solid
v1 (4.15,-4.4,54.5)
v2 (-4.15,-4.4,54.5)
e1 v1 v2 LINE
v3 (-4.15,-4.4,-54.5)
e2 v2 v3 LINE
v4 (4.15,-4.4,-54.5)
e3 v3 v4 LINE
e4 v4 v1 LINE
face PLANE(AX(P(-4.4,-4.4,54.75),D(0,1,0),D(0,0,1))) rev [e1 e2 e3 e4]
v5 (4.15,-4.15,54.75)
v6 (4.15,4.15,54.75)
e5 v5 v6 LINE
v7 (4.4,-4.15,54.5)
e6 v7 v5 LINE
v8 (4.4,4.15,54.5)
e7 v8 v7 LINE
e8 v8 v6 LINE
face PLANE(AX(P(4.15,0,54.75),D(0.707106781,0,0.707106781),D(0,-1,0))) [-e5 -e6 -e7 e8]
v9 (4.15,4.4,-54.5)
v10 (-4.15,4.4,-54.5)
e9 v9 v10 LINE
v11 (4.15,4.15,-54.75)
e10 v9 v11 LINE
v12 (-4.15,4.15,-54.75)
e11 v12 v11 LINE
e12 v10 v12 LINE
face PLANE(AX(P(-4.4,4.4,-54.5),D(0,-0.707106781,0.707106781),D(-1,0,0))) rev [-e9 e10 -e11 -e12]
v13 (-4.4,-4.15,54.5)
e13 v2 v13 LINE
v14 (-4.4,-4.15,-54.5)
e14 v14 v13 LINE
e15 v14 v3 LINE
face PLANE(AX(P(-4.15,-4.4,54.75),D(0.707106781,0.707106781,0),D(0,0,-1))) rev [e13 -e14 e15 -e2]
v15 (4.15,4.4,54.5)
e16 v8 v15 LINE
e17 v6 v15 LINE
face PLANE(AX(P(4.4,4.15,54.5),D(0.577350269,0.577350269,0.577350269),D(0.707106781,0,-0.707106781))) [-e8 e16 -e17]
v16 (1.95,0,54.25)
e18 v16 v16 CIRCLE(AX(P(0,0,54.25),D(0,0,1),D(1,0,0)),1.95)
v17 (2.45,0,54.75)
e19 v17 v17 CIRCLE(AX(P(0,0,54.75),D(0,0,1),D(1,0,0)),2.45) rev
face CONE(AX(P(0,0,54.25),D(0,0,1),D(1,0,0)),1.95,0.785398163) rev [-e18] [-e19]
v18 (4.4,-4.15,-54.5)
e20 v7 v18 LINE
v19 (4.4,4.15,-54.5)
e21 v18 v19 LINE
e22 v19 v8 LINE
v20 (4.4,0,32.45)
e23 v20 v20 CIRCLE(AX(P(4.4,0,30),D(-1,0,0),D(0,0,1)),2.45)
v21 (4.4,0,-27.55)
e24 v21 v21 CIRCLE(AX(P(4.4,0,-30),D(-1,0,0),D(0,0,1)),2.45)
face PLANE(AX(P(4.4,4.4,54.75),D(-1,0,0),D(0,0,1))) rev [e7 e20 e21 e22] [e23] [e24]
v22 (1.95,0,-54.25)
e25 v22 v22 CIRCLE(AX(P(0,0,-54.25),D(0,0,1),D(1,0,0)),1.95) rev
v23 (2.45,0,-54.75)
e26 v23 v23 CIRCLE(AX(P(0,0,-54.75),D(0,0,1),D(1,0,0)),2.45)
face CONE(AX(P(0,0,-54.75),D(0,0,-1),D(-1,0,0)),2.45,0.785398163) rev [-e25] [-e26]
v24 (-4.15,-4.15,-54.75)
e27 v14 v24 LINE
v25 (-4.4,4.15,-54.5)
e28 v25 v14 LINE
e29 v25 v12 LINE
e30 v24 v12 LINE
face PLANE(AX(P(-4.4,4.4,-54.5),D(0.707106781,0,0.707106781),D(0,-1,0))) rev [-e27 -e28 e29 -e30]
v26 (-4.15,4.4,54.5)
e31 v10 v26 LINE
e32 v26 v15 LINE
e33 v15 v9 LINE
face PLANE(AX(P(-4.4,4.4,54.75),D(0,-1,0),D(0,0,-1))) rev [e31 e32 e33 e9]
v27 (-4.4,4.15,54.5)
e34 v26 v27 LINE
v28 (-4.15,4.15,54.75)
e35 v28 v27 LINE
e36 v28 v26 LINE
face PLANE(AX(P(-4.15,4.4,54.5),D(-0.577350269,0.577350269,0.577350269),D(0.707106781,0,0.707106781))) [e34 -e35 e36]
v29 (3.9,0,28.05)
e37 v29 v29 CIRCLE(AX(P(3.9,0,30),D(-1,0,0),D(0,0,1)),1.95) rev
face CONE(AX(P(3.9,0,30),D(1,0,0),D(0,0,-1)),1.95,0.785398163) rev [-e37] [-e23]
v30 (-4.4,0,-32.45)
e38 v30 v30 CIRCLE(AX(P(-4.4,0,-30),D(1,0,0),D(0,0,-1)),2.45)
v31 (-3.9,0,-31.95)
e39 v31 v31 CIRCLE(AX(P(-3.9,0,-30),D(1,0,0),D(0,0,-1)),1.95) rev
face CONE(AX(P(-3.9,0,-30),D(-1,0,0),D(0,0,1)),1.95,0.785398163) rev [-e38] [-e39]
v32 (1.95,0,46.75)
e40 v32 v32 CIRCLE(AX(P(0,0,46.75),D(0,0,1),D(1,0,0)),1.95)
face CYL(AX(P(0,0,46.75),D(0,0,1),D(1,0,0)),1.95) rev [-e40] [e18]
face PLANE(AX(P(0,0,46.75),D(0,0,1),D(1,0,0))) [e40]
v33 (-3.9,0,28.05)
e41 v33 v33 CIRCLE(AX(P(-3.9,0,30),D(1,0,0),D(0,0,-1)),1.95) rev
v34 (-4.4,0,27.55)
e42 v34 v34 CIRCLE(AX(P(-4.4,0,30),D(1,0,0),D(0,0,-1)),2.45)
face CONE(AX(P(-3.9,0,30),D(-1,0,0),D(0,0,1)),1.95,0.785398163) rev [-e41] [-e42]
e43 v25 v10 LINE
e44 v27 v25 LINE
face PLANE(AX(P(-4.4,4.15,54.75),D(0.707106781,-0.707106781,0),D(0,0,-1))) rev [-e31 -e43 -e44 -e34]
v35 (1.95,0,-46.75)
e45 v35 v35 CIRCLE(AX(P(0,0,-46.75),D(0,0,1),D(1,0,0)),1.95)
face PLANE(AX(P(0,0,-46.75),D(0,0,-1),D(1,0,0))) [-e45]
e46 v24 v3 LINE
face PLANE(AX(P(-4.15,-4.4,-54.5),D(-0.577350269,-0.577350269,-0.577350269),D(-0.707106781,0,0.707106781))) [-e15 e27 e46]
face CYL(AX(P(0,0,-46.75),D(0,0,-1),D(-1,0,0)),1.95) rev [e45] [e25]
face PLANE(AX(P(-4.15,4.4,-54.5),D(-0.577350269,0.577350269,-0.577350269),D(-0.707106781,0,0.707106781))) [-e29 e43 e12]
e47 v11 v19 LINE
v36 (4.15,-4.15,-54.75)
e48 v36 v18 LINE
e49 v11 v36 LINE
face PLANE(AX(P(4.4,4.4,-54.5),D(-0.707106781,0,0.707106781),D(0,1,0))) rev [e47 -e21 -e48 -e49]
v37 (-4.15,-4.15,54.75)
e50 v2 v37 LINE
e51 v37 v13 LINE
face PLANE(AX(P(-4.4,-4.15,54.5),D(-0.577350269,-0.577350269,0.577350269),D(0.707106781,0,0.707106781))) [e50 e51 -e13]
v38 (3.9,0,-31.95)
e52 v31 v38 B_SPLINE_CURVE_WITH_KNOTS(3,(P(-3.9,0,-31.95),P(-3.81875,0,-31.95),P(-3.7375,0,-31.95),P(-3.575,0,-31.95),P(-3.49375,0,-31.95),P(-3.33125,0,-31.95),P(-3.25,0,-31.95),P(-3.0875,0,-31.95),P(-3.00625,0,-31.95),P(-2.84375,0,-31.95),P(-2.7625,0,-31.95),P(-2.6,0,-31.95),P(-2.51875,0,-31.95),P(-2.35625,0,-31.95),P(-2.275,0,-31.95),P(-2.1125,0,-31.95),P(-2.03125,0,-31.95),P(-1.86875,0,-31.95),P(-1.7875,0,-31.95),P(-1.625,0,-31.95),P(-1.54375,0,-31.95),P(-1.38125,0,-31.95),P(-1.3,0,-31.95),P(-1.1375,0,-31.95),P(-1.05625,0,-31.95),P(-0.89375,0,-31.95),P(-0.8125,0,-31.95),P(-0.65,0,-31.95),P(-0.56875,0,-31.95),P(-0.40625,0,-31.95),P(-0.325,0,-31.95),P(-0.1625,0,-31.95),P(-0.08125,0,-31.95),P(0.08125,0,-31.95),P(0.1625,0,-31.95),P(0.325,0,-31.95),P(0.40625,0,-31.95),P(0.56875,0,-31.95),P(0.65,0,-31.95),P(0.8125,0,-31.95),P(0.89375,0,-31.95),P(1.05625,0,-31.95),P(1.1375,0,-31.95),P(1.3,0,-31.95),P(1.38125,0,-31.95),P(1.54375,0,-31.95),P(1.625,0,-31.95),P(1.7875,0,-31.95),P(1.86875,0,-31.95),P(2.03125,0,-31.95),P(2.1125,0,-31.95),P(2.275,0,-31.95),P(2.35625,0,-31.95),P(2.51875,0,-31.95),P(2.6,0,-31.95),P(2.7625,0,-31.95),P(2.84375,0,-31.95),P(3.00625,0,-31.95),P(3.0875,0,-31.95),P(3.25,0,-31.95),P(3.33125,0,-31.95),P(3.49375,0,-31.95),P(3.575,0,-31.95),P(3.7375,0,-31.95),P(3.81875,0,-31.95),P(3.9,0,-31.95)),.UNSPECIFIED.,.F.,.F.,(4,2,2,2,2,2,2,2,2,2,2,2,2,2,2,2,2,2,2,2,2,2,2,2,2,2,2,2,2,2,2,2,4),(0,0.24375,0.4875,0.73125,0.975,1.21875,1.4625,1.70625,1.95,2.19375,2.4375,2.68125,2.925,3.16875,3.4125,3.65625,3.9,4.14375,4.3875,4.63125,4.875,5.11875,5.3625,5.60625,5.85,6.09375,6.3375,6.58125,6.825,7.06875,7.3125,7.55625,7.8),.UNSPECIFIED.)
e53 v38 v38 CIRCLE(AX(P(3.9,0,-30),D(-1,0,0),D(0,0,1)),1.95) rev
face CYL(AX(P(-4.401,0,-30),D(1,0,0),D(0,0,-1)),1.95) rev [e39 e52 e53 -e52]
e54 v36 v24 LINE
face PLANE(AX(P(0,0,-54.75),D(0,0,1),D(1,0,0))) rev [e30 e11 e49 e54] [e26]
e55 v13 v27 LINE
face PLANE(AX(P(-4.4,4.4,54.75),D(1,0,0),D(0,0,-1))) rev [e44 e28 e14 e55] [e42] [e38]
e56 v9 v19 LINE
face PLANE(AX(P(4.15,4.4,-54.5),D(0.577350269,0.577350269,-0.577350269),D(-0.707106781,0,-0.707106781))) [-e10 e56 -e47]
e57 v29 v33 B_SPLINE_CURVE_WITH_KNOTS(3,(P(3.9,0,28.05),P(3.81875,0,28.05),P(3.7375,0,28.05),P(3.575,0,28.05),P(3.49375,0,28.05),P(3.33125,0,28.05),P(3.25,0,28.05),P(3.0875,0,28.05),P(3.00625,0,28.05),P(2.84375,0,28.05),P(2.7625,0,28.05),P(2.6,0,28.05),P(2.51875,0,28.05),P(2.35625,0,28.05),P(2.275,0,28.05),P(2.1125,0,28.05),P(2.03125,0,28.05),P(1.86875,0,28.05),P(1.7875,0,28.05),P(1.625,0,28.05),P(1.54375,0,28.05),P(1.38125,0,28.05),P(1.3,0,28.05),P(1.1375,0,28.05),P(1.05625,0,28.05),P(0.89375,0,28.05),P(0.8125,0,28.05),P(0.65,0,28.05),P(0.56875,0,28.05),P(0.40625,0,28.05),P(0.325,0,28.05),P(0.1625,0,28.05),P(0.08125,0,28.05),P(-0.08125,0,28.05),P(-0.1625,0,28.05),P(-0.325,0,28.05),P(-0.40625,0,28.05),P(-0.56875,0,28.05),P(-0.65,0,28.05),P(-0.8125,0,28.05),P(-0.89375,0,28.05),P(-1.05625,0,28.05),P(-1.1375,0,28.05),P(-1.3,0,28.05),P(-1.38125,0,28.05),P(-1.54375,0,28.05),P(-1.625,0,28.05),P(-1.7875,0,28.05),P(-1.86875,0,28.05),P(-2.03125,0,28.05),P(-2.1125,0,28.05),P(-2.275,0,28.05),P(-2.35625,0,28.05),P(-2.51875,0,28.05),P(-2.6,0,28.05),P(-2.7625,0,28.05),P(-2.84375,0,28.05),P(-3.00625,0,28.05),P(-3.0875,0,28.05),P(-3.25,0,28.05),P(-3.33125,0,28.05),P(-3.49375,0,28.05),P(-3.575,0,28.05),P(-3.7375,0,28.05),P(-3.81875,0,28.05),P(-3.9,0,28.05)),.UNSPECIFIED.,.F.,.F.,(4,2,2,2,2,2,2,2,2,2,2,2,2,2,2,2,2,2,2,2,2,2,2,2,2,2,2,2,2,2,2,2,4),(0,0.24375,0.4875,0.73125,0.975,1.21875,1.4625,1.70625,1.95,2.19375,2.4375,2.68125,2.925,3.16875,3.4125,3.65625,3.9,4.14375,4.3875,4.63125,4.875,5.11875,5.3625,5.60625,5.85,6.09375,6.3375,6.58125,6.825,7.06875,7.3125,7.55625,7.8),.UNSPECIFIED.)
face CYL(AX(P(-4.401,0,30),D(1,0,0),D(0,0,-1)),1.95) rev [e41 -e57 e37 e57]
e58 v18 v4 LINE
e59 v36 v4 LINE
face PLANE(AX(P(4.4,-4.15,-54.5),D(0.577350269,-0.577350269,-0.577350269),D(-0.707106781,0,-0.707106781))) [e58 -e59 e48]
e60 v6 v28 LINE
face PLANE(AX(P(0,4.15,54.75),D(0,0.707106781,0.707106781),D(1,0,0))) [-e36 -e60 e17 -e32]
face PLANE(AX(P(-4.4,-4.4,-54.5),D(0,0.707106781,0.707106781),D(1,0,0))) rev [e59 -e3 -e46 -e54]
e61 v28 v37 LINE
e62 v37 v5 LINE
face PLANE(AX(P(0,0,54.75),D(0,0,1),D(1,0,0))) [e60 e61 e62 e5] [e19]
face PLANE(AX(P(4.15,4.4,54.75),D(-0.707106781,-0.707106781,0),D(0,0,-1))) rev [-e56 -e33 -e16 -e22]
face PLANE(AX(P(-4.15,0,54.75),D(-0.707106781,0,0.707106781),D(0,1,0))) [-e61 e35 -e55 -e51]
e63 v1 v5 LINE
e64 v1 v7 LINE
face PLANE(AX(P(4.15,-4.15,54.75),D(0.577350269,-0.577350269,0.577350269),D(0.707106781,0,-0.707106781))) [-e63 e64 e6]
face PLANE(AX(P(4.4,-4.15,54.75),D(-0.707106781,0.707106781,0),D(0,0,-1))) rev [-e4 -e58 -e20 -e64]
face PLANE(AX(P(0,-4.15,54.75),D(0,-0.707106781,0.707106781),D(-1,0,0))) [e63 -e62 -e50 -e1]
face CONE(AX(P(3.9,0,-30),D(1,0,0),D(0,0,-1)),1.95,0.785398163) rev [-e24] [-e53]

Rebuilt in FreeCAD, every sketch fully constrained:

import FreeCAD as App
import Part
import Sketcher

V = App.Vector


def edges_at(feature, points):
    """Names of the edges that pass closest to the given points."""
    edges = feature.Shape.Edges
    near = lambda p: min(range(len(edges)), key=lambda i: edges[i].distToShape(Part.Vertex(*p))[0])
    return sorted({f"Edge{near(p) + 1}" for p in points})


def add_polygon(sketch, points):
    """Adds a closed chain of lines whose ends are joined by coincident constraints."""
    first, n = sketch.GeometryCount, len(points)
    for a, b in zip(points, points[1:] + points[:1]):
        sketch.addGeometry(Part.LineSegment(App.Vector(*a, 0), App.Vector(*b, 0)), False)
    for i in range(n):
        sketch.addConstraint(Sketcher.Constraint("Coincident", first + i, 2, first + (i + 1) % n, 1))

doc = App.newDocument("Part")
body = doc.addObject("PartDesign::Body", "Body")

# Sketch on XY plane
sketch1 = body.newObject("Sketcher::SketchObject", "Sketch")
sketch1.AttachmentSupport = (doc.getObject("XY_Plane"), [""])
sketch1.MapMode = "FlatFace"
add_polygon(sketch1, [(-4.4, 4.4), (-4.4, -4.4), (4.4, -4.4), (4.4, 4.4)])  # lines 0-3
sketch1.addConstraint([
    Sketcher.Constraint("Vertical", 0),
    Sketcher.Constraint("Horizontal", 1),
    Sketcher.Constraint("Vertical", 2),
    Sketcher.Constraint("Horizontal", 3),
    Sketcher.Constraint("Symmetric", 0, 2, 2, 2, -1, 1),
    Sketcher.Constraint("Equal", 3, 0),
    Sketcher.Constraint("DistanceX", 1, 1, 1, 2, 8.8),
])
pad1 = body.newObject("PartDesign::Pad", "Pad")
pad1.Profile = sketch1
pad1.Length = 109.5
pad1.Midplane = True

# Sketch on XY plane
sketch2 = body.newObject("Sketcher::SketchObject", "Sketch001")
sketch2.AttachmentSupport = (doc.getObject("XY_Plane"), [""])
sketch2.MapMode = "FlatFace"
sketch2.AttachmentOffset = App.Placement(V(0, 0, 54.75), App.Rotation())
sketch2.addGeometry(Part.Circle(V(0, 0, 0), V(0, 0, 1), 1.95), False)
sketch2.addConstraint([
    Sketcher.Constraint("Coincident", 0, 3, -1, 1),
    Sketcher.Constraint("Diameter", 0, 3.9),
])
pocket1 = body.newObject("PartDesign::Pocket", "Pocket")
pocket1.Profile = sketch2
pocket1.Length = 8
doc.recompute()

mirrored = body.newObject("PartDesign::Mirrored", "Mirrored")
mirrored.Originals = [pocket1]
mirrored.MirrorPlane = (doc.getObject("XY_Plane"), [""])
body.Tip = mirrored

# Sketch on YZ plane
sketch3 = body.newObject("Sketcher::SketchObject", "Sketch002")
sketch3.AttachmentSupport = (doc.getObject("YZ_Plane"), [""])
sketch3.MapMode = "FlatFace"
sketch3.AttachmentOffset = App.Placement(V(0, 0, 4.4), App.Rotation())
sketch3.addGeometry(Part.Circle(V(0, 30, 0), V(0, 0, 1), 1.95), False)
sketch3.addConstraint([
    Sketcher.Constraint("PointOnObject", 0, 3, -2),
    Sketcher.Constraint("Diameter", 0, 3.9),
    Sketcher.Constraint("DistanceY", -1, 1, 0, 3, 30.0),
])
pocket2 = body.newObject("PartDesign::Pocket", "Pocket001")
pocket2.Profile = sketch3
pocket2.Type = "UpToFirst"

# Sketch on YZ plane
sketch4 = body.newObject("Sketcher::SketchObject", "Sketch003")
sketch4.AttachmentSupport = (doc.getObject("YZ_Plane"), [""])
sketch4.MapMode = "FlatFace"
sketch4.AttachmentOffset = App.Placement(V(0, 0, 4.4), App.Rotation())
sketch4.addGeometry(Part.Circle(V(0, -30, 0), V(0, 0, 1), 1.95), False)
sketch4.addConstraint([
    Sketcher.Constraint("PointOnObject", 0, 3, -2),
    Sketcher.Constraint("Diameter", 0, 3.9),
    Sketcher.Constraint("DistanceY", 0, 3, -1, 1, 30.0),
])
pocket3 = body.newObject("PartDesign::Pocket", "Pocket002")
pocket3.Profile = sketch4
pocket3.Type = "UpToFirst"
doc.recompute()

chamfer = body.newObject("PartDesign::Chamfer", "Chamfer")
chamfer.Base = (pocket3, edges_at(pocket3, [
    (-1.95, 0, 54.75),
    (-1.95, 0, -54.75),
    (4.4, 0, 31.95),
    (-4.4, 0, 31.95),
    (4.4, 0, -28.05),
    (-4.4, 0, -28.05),
]))
chamfer.Size = 0.5
doc.recompute()

chamfer2 = body.newObject("PartDesign::Chamfer", "Chamfer001")
chamfer2.Base = (chamfer, edges_at(chamfer, [
    (-4.4, 0, 54.75),
    (0, -4.4, 54.75),
    (4.4, 0, 54.75),
    (0, -4.4, -54.75),
    (-4.4, 0, -54.75),
    (0, 4.4, -54.75),
    (4.4, 0, -54.75),
    (4.4, -4.4, 0),
    (-4.4, -4.4, 0),
    (-4.4, 4.4, 0),
    (4.4, 4.4, 0),
    (0, 4.4, 54.75),
]))
chamfer2.Size = 0.25

doc.recompute()
